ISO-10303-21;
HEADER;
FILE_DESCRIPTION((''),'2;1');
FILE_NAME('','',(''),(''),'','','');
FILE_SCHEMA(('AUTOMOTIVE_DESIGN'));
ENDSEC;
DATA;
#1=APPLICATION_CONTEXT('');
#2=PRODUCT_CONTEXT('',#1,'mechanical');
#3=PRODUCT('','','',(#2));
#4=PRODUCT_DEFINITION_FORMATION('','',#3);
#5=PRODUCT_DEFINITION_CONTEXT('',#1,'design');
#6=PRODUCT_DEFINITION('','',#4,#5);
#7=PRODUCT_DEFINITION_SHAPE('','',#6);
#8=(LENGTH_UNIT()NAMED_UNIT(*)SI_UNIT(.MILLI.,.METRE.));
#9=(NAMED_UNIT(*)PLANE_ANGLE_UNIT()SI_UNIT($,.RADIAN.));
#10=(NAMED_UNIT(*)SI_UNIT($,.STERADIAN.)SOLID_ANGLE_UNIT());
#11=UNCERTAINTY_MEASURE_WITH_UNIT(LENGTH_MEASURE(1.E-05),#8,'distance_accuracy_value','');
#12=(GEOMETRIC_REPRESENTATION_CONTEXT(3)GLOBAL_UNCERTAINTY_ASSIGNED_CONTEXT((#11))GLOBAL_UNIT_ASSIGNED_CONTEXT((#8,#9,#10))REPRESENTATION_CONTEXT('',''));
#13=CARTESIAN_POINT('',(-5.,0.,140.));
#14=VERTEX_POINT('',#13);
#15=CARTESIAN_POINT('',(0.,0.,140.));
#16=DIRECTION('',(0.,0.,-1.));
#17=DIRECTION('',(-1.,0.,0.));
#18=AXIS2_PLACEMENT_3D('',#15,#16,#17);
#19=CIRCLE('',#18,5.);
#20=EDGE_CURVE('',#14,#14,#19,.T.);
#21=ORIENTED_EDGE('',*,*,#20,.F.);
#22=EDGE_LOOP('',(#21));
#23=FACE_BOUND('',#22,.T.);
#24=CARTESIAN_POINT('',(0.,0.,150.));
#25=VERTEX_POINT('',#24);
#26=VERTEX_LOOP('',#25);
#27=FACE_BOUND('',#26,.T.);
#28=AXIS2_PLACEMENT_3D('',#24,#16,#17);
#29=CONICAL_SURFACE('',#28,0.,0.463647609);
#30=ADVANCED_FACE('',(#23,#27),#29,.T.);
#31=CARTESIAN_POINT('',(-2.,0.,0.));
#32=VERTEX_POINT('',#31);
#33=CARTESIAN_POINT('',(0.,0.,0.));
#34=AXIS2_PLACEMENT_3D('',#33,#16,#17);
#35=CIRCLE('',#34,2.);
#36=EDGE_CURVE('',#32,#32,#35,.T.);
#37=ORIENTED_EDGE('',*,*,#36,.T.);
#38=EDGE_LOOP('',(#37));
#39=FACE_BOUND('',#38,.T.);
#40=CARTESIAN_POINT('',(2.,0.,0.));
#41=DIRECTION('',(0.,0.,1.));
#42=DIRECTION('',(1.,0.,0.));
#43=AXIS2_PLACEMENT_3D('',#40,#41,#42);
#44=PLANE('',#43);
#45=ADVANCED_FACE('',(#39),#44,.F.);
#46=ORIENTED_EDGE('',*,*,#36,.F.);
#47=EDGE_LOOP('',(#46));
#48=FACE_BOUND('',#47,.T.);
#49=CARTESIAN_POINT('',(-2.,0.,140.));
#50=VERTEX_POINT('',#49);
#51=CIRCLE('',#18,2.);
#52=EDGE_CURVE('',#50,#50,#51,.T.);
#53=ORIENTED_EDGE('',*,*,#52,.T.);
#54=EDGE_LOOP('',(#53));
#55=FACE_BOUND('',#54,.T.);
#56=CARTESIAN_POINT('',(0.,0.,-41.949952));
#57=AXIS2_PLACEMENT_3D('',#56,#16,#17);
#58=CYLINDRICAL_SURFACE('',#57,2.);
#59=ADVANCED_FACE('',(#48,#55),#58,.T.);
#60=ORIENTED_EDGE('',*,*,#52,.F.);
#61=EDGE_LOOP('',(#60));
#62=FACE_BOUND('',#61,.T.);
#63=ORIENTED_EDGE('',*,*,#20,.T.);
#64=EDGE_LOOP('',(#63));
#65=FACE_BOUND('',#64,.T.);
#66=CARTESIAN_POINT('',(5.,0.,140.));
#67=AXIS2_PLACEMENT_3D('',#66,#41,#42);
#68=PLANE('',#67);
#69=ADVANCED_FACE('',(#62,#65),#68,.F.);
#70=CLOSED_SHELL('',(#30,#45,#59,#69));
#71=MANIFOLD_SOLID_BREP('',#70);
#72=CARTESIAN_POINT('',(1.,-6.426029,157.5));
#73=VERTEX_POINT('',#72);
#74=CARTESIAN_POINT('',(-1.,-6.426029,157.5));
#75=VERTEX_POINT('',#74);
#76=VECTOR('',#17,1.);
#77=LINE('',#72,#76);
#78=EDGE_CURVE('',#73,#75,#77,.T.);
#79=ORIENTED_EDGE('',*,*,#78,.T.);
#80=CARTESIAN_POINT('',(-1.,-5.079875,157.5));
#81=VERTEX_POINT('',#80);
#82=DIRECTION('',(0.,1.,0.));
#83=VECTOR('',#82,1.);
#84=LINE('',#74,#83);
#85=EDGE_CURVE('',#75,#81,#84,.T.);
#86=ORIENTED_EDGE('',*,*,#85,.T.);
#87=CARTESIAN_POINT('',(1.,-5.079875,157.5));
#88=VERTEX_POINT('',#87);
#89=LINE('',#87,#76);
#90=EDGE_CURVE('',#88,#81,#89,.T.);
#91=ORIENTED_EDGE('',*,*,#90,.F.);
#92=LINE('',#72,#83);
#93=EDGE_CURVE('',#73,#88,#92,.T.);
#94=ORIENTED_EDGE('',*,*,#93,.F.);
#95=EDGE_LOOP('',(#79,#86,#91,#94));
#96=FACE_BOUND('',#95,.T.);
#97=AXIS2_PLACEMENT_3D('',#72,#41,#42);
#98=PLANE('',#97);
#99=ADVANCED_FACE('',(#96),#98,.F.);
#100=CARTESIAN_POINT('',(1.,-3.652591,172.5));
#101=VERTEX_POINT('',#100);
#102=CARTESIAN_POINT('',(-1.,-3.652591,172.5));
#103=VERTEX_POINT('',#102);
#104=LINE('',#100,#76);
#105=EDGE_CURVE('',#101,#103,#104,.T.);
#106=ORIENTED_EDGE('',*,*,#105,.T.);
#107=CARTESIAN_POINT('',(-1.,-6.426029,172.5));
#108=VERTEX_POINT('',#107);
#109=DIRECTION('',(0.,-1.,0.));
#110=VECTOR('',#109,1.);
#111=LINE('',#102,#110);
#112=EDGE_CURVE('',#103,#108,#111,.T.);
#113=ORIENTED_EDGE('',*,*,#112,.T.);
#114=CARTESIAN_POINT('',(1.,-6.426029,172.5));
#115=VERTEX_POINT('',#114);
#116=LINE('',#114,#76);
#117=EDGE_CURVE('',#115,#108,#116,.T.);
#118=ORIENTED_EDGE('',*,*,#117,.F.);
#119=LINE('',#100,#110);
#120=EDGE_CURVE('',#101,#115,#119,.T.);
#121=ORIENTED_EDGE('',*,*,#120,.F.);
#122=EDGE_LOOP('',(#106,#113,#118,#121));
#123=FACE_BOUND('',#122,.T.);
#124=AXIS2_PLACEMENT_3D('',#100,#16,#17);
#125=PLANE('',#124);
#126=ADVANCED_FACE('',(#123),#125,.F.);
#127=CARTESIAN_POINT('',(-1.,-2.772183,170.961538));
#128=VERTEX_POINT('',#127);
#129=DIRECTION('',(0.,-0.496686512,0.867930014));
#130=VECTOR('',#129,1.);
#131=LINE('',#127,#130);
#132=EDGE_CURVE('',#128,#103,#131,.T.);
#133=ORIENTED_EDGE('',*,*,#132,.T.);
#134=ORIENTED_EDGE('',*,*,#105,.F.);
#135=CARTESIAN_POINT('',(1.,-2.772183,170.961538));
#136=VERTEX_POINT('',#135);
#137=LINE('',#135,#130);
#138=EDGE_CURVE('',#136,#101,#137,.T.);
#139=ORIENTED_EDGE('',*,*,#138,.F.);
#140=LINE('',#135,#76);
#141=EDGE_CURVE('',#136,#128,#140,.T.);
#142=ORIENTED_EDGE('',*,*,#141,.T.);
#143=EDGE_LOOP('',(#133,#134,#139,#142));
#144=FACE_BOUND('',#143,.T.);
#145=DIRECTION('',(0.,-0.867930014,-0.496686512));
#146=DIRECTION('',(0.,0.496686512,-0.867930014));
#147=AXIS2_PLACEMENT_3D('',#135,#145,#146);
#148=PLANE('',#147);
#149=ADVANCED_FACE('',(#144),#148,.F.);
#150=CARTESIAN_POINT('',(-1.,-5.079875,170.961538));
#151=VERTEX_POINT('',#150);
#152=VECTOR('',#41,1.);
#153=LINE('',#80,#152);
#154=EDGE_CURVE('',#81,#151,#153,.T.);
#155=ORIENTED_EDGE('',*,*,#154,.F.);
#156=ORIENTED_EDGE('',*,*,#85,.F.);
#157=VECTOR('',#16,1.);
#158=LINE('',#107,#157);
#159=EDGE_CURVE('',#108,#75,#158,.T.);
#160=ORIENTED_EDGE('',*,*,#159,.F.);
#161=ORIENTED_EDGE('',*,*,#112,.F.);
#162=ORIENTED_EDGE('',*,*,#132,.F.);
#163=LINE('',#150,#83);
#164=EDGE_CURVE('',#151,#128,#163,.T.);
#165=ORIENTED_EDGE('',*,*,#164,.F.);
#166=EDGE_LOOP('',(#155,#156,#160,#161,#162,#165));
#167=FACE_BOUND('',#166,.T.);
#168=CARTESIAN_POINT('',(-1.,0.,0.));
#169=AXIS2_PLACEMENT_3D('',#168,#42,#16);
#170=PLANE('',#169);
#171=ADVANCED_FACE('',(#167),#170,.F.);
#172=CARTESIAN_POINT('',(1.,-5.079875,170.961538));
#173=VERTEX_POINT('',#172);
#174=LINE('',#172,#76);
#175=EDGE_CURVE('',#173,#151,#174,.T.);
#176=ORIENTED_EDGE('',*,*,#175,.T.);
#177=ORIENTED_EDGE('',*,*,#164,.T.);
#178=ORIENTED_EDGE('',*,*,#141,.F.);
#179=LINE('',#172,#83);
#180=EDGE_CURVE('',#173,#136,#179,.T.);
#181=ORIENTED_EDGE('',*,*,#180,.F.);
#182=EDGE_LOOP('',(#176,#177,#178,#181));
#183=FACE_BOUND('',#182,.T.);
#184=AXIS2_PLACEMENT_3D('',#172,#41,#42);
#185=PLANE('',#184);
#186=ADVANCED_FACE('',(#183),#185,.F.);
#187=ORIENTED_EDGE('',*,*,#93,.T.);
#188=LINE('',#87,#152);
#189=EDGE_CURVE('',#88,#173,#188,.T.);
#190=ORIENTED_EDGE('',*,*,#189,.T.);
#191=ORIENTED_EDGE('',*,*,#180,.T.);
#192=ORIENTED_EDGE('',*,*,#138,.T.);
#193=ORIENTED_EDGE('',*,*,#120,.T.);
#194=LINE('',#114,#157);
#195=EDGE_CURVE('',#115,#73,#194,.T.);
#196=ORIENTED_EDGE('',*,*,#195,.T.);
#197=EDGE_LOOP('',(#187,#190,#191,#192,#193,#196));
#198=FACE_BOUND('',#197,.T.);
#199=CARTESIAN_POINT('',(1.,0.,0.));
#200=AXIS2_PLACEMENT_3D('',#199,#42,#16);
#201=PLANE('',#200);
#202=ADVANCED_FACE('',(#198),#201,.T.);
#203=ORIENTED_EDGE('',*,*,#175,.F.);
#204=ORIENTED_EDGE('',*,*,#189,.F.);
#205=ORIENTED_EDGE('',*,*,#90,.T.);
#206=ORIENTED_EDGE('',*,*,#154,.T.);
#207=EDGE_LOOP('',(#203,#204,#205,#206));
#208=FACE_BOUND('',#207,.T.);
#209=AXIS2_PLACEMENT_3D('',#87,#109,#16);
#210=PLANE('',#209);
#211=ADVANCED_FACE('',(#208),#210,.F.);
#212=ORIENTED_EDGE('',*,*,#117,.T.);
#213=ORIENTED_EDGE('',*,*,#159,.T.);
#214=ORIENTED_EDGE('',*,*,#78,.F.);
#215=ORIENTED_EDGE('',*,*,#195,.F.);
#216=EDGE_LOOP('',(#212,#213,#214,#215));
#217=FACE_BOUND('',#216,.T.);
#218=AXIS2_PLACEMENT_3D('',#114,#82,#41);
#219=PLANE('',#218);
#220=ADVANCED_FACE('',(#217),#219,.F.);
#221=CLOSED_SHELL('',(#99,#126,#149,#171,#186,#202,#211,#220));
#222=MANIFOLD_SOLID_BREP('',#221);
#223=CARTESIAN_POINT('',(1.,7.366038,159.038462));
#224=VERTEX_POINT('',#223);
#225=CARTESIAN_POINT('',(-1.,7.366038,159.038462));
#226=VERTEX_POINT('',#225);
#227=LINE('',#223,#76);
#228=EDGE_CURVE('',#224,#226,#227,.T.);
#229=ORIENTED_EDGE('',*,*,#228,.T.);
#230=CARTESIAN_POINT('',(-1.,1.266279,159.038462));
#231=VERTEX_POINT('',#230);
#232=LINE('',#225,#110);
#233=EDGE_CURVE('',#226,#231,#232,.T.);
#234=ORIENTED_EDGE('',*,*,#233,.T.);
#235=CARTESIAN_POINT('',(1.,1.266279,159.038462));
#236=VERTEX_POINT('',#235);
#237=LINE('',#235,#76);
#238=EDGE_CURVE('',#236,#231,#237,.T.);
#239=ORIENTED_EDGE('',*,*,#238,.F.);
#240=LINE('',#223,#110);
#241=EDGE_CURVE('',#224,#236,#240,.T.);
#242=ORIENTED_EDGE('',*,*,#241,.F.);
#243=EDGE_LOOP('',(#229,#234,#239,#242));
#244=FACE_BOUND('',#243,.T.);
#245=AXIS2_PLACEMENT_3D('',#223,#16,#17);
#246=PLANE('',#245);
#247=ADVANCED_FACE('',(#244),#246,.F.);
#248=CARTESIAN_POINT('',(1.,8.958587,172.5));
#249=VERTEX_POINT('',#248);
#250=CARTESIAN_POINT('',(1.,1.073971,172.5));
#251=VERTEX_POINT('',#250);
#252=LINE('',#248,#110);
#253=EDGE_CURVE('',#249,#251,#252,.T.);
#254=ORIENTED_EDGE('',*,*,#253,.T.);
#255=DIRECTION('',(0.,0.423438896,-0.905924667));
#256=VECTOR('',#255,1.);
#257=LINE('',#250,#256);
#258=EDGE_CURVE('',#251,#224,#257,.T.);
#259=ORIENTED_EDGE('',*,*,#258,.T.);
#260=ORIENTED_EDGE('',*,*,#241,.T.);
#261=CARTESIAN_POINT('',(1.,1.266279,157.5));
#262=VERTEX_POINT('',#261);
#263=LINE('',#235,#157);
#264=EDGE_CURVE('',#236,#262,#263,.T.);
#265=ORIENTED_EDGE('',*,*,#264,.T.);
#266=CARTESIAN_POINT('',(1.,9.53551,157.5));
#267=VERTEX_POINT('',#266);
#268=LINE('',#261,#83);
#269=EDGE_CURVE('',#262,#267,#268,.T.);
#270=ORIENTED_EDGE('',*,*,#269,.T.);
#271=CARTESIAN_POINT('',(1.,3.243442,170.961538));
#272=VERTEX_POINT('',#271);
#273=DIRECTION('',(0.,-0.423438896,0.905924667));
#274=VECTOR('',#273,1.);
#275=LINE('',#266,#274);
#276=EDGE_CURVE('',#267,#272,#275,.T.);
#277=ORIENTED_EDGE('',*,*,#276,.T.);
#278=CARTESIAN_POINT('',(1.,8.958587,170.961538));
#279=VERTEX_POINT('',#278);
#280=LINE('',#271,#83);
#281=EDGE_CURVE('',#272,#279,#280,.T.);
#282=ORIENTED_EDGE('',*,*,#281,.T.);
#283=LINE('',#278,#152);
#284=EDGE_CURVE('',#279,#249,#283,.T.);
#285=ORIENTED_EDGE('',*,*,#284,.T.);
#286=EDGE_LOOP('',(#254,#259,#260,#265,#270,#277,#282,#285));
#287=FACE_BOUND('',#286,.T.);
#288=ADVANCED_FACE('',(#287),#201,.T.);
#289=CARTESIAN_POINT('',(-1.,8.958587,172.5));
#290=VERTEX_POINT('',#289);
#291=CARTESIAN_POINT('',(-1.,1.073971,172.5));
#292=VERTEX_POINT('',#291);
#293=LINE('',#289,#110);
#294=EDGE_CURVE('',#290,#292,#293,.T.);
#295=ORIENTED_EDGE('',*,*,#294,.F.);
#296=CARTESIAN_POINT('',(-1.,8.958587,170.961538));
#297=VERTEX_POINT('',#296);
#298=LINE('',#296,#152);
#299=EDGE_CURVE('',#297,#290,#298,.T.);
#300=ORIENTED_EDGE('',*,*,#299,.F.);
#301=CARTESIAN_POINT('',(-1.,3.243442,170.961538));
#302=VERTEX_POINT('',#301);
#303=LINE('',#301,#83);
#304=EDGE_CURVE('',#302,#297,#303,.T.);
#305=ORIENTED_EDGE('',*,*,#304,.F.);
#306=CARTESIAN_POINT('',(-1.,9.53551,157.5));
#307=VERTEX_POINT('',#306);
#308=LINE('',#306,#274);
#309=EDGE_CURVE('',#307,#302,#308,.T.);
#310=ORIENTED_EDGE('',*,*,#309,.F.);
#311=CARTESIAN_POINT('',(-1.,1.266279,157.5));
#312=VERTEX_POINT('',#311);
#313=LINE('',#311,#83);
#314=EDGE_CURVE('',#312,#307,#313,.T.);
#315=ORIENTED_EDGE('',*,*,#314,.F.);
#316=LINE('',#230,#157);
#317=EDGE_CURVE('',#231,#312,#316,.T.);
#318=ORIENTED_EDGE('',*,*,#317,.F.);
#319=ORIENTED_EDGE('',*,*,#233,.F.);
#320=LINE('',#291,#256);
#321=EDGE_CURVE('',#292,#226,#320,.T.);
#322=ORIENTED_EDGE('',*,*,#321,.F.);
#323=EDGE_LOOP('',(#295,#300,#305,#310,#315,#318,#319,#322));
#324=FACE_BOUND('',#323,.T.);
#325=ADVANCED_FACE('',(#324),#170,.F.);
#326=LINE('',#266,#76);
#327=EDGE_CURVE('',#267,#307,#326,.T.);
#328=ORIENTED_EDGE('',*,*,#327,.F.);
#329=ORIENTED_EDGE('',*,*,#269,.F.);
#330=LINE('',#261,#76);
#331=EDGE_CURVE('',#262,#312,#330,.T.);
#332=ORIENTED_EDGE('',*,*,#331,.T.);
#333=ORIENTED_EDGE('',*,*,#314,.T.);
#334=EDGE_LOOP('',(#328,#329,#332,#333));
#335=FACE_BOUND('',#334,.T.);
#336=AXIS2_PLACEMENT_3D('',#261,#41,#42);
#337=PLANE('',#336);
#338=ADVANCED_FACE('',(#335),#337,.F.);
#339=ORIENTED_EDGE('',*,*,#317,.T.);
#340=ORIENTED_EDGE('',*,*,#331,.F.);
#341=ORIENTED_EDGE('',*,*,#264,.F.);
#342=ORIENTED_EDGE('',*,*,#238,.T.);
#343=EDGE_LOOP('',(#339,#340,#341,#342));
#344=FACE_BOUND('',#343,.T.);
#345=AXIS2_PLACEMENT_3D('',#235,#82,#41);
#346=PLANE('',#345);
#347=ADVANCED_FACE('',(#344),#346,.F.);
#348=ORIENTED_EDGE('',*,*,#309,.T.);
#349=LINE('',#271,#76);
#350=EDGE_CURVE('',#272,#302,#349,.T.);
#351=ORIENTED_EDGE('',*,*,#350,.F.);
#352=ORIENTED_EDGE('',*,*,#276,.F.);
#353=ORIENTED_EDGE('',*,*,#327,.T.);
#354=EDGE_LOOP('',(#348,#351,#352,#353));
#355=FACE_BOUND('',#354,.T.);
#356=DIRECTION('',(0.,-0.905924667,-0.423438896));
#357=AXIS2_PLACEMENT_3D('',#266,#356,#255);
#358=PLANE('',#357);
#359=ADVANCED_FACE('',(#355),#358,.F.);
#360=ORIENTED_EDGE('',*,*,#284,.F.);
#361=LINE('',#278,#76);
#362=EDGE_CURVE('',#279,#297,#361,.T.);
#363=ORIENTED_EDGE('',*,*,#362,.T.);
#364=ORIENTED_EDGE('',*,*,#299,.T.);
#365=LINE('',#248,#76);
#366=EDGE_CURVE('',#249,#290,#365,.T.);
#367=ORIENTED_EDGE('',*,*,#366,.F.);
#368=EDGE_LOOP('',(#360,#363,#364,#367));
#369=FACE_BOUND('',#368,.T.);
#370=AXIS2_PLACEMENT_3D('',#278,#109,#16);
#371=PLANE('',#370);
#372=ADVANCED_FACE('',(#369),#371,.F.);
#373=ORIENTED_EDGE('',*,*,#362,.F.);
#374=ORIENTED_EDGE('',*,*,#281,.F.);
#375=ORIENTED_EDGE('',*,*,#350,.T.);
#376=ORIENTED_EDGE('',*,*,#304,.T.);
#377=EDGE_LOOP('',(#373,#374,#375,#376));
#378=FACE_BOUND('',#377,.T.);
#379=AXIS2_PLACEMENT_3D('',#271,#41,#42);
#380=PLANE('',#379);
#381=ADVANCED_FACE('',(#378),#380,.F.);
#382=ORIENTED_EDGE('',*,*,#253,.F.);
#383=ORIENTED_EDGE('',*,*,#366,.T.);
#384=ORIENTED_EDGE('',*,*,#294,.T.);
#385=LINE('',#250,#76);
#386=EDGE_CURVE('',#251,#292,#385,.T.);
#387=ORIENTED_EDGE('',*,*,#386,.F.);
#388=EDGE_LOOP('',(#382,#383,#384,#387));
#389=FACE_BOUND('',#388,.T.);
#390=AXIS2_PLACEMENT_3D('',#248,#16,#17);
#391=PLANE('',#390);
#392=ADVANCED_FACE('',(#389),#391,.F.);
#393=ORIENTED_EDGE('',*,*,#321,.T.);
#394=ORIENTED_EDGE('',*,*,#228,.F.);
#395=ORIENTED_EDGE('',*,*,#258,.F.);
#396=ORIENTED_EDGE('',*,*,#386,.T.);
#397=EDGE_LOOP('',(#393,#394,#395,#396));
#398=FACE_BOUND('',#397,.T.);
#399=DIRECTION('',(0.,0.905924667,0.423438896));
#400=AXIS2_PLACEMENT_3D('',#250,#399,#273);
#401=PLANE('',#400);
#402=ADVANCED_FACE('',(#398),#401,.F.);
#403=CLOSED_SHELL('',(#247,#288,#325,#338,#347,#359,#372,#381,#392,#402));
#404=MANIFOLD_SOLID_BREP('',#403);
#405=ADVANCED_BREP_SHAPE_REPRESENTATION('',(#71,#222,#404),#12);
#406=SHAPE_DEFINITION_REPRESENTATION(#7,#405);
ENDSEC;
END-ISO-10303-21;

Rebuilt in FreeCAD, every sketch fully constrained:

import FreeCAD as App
import Part
import Sketcher
from FreeCAD import Vector
Q = App.Units.Quantity

doc = App.newDocument("Part")
body = doc.addObject("PartDesign::Body", "Body")

# Sketch on XZ plane
sketch1 = body.newObject("Sketcher::SketchObject", "Sketch")
sketch1.AttachmentSupport = (doc.getObject("XZ_Plane"), [""])
sketch1.MapMode = "FlatFace"
sketch1.addGeometry([
    Part.LineSegment(Vector(0, 150, 0), Vector(5, 140, 0)),  # 0
    Part.LineSegment(Vector(5, 140, 0), Vector(2, 140, 0)),  # 1
    Part.LineSegment(Vector(2, 140, 0), Vector(2, 0, 0)),  # 2
    Part.LineSegment(Vector(2, 0, 0), Vector(0, 0, 0)),  # 3
    Part.LineSegment(Vector(0, 0, 0), Vector(0, 150, 0)),  # 4
], False)
sketch1.addConstraint([
    Sketcher.Constraint("Coincident", 0, 2, 1, 1),
    Sketcher.Constraint("Coincident", 1, 2, 2, 1),
    Sketcher.Constraint("Coincident", 2, 2, 3, 1),
    Sketcher.Constraint("Coincident", 3, 2, 4, 1),
    Sketcher.Constraint("Coincident", 4, 2, 0, 1),
    Sketcher.Constraint("Horizontal", 1),
    Sketcher.Constraint("Vertical", 2),
    Sketcher.Constraint("Horizontal", 3),
    Sketcher.Constraint("Vertical", 4),
    Sketcher.Constraint("Coincident", 3, 2, -1, 1),
    Sketcher.Constraint("DistanceX", 1, 2, 1, 1, Q("3 mm")),
    Sketcher.Constraint("DistanceX", 3, 2, 3, 1, Q("2 mm")),
    Sketcher.Constraint("DistanceY", 2, 2, 2, 1, Q("140 mm")),
    Sketcher.Constraint("DistanceY", 4, 1, 4, 2, Q("150 mm")),
])
revolution = body.newObject("PartDesign::Revolution", "Revolution")
revolution.Profile = sketch1
revolution.ReferenceAxis = (sketch1, ["V_Axis"])
revolution.Angle = 360
body2 = doc.addObject("PartDesign::Body", "Body001")

# Sketch on YZ plane
sketch2 = body2.newObject("Sketcher::SketchObject", "Sketch001")
sketch2.AttachmentSupport = (doc.getObject("YZ_Plane001"), [""])
sketch2.MapMode = "FlatFace"
sketch2.addGeometry([
    Part.LineSegment(Vector(9, 171, 0), Vector(9, 172.5, 0)),  # 0
    Part.LineSegment(Vector(9, 172.5, 0), Vector(1.1, 172.5, 0)),  # 1
    Part.LineSegment(Vector(1.1, 172.5, 0), Vector(7.4, 159, 0)),  # 2
    Part.LineSegment(Vector(7.4, 159, 0), Vector(1.3, 159, 0)),  # 3
    Part.LineSegment(Vector(1.3, 159, 0), Vector(1.3, 157.5, 0)),  # 4
    Part.LineSegment(Vector(1.3, 157.5, 0), Vector(9.5, 157.5, 0)),  # 5
    Part.LineSegment(Vector(9.5, 157.5, 0), Vector(3.2, 171, 0)),  # 6
    Part.LineSegment(Vector(3.2, 171, 0), Vector(9, 171, 0)),  # 7
], False)
sketch2.addConstraint([
    Sketcher.Constraint("Coincident", 0, 2, 1, 1),
    Sketcher.Constraint("Coincident", 1, 2, 2, 1),
    Sketcher.Constraint("Coincident", 2, 2, 3, 1),
    Sketcher.Constraint("Coincident", 3, 2, 4, 1),
    Sketcher.Constraint("Coincident", 4, 2, 5, 1),
    Sketcher.Constraint("Coincident", 5, 2, 6, 1),
    Sketcher.Constraint("Coincident", 6, 2, 7, 1),
    Sketcher.Constraint("Coincident", 7, 2, 0, 1),
    Sketcher.Constraint("Vertical", 0),
    Sketcher.Constraint("Horizontal", 1),
    Sketcher.Constraint("Horizontal", 3),
    Sketcher.Constraint("Vertical", 4),
    Sketcher.Constraint("Horizontal", 5),
    Sketcher.Constraint("Horizontal", 7),
    Sketcher.Constraint("Parallel", 2, 6),
    Sketcher.Constraint("Equal", 0, 4),
    Sketcher.Constraint("DistanceY", 4, 2, 1, 2, Q("15 mm")),
    Sketcher.Constraint("DistanceY", -1, 1, 0, 2, Q("172.5 mm")),
    Sketcher.Constraint("DistanceX", 3, 2, 3, 1, Q("6.09976 mm")),
    Sketcher.Constraint("DistanceX", 5, 1, 5, 2, Q("8.269231 mm")),
    Sketcher.Constraint("DistanceY", 0, 1, 0, 2, Q("1.538462 mm")),
    Sketcher.Constraint("DistanceX", 1, 2, 1, 1, Q("7.884615 mm")),
    Sketcher.Constraint("DistanceX", -1, 1, 1, 2, Q("1.073971 mm")),
    Sketcher.Constraint("DistanceX", -1, 1, 2, 2, Q("7.366038 mm")),
])
pad1 = body2.newObject("PartDesign::Pad", "Pad")
pad1.Profile = sketch2
pad1.Type = "TwoLengths"
pad1.Length = 1
pad1.Length2 = 1
body3 = doc.addObject("PartDesign::Body", "Body002")

# Sketch on YZ plane
sketch3 = body3.newObject("Sketcher::SketchObject", "Sketch002")
sketch3.AttachmentSupport = (doc.getObject("YZ_Plane002"), [""])
sketch3.MapMode = "FlatFace"
sketch3.addGeometry([
    Part.LineSegment(Vector(-3.7, 172.5, 0), Vector(-6.4, 172.5, 0)),  # 0
    Part.LineSegment(Vector(-6.4, 172.5, 0), Vector(-6.4, 157.5, 0)),  # 1
    Part.LineSegment(Vector(-6.4, 157.5, 0), Vector(-5.1, 157.5, 0)),  # 2
    Part.LineSegment(Vector(-5.1, 157.5, 0), Vector(-5.1, 171, 0)),  # 3
    Part.LineSegment(Vector(-5.1, 171, 0), Vector(-2.8, 171, 0)),  # 4
    Part.LineSegment(Vector(-2.8, 171, 0), Vector(-3.7, 172.5, 0)),  # 5
], False)
sketch3.addConstraint([
    Sketcher.Constraint("Coincident", 0, 2, 1, 1),
    Sketcher.Constraint("Coincident", 1, 2, 2, 1),
    Sketcher.Constraint("Coincident", 2, 2, 3, 1),
    Sketcher.Constraint("Coincident", 3, 2, 4, 1),
    Sketcher.Constraint("Coincident", 4, 2, 5, 1),
    Sketcher.Constraint("Coincident", 5, 2, 0, 1),
    Sketcher.Constraint("Horizontal", 0),
    Sketcher.Constraint("Vertical", 1),
    Sketcher.Constraint("Horizontal", 2),
    Sketcher.Constraint("Vertical", 3),
    Sketcher.Constraint("Horizontal", 4),
    Sketcher.Constraint("DistanceY", 1, 2, 1, 1, Q("15 mm")),
    Sketcher.Constraint("DistanceY", -1, 1, 0, 2, Q("172.5 mm")),
    Sketcher.Constraint("DistanceY", 3, 1, 3, 2, Q("13.461538 mm")),
    Sketcher.Constraint("DistanceX", 0, 2, 0, 1, Q("2.773438 mm")),
    Sketcher.Constraint("DistanceX", 2, 1, 2, 2, Q("1.346154 mm")),
    Sketcher.Constraint("DistanceX", 4, 1, 4, 2, Q("2.307692 mm")),
    Sketcher.Constraint("DistanceX", 0, 2, -1, 1, Q("6.426029 mm")),
])
pad2 = body3.newObject("PartDesign::Pad", "Pad001")
pad2.Profile = sketch3
pad2.Type = "TwoLengths"
pad2.Length = 1
pad2.Length2 = 1

doc.recompute()
